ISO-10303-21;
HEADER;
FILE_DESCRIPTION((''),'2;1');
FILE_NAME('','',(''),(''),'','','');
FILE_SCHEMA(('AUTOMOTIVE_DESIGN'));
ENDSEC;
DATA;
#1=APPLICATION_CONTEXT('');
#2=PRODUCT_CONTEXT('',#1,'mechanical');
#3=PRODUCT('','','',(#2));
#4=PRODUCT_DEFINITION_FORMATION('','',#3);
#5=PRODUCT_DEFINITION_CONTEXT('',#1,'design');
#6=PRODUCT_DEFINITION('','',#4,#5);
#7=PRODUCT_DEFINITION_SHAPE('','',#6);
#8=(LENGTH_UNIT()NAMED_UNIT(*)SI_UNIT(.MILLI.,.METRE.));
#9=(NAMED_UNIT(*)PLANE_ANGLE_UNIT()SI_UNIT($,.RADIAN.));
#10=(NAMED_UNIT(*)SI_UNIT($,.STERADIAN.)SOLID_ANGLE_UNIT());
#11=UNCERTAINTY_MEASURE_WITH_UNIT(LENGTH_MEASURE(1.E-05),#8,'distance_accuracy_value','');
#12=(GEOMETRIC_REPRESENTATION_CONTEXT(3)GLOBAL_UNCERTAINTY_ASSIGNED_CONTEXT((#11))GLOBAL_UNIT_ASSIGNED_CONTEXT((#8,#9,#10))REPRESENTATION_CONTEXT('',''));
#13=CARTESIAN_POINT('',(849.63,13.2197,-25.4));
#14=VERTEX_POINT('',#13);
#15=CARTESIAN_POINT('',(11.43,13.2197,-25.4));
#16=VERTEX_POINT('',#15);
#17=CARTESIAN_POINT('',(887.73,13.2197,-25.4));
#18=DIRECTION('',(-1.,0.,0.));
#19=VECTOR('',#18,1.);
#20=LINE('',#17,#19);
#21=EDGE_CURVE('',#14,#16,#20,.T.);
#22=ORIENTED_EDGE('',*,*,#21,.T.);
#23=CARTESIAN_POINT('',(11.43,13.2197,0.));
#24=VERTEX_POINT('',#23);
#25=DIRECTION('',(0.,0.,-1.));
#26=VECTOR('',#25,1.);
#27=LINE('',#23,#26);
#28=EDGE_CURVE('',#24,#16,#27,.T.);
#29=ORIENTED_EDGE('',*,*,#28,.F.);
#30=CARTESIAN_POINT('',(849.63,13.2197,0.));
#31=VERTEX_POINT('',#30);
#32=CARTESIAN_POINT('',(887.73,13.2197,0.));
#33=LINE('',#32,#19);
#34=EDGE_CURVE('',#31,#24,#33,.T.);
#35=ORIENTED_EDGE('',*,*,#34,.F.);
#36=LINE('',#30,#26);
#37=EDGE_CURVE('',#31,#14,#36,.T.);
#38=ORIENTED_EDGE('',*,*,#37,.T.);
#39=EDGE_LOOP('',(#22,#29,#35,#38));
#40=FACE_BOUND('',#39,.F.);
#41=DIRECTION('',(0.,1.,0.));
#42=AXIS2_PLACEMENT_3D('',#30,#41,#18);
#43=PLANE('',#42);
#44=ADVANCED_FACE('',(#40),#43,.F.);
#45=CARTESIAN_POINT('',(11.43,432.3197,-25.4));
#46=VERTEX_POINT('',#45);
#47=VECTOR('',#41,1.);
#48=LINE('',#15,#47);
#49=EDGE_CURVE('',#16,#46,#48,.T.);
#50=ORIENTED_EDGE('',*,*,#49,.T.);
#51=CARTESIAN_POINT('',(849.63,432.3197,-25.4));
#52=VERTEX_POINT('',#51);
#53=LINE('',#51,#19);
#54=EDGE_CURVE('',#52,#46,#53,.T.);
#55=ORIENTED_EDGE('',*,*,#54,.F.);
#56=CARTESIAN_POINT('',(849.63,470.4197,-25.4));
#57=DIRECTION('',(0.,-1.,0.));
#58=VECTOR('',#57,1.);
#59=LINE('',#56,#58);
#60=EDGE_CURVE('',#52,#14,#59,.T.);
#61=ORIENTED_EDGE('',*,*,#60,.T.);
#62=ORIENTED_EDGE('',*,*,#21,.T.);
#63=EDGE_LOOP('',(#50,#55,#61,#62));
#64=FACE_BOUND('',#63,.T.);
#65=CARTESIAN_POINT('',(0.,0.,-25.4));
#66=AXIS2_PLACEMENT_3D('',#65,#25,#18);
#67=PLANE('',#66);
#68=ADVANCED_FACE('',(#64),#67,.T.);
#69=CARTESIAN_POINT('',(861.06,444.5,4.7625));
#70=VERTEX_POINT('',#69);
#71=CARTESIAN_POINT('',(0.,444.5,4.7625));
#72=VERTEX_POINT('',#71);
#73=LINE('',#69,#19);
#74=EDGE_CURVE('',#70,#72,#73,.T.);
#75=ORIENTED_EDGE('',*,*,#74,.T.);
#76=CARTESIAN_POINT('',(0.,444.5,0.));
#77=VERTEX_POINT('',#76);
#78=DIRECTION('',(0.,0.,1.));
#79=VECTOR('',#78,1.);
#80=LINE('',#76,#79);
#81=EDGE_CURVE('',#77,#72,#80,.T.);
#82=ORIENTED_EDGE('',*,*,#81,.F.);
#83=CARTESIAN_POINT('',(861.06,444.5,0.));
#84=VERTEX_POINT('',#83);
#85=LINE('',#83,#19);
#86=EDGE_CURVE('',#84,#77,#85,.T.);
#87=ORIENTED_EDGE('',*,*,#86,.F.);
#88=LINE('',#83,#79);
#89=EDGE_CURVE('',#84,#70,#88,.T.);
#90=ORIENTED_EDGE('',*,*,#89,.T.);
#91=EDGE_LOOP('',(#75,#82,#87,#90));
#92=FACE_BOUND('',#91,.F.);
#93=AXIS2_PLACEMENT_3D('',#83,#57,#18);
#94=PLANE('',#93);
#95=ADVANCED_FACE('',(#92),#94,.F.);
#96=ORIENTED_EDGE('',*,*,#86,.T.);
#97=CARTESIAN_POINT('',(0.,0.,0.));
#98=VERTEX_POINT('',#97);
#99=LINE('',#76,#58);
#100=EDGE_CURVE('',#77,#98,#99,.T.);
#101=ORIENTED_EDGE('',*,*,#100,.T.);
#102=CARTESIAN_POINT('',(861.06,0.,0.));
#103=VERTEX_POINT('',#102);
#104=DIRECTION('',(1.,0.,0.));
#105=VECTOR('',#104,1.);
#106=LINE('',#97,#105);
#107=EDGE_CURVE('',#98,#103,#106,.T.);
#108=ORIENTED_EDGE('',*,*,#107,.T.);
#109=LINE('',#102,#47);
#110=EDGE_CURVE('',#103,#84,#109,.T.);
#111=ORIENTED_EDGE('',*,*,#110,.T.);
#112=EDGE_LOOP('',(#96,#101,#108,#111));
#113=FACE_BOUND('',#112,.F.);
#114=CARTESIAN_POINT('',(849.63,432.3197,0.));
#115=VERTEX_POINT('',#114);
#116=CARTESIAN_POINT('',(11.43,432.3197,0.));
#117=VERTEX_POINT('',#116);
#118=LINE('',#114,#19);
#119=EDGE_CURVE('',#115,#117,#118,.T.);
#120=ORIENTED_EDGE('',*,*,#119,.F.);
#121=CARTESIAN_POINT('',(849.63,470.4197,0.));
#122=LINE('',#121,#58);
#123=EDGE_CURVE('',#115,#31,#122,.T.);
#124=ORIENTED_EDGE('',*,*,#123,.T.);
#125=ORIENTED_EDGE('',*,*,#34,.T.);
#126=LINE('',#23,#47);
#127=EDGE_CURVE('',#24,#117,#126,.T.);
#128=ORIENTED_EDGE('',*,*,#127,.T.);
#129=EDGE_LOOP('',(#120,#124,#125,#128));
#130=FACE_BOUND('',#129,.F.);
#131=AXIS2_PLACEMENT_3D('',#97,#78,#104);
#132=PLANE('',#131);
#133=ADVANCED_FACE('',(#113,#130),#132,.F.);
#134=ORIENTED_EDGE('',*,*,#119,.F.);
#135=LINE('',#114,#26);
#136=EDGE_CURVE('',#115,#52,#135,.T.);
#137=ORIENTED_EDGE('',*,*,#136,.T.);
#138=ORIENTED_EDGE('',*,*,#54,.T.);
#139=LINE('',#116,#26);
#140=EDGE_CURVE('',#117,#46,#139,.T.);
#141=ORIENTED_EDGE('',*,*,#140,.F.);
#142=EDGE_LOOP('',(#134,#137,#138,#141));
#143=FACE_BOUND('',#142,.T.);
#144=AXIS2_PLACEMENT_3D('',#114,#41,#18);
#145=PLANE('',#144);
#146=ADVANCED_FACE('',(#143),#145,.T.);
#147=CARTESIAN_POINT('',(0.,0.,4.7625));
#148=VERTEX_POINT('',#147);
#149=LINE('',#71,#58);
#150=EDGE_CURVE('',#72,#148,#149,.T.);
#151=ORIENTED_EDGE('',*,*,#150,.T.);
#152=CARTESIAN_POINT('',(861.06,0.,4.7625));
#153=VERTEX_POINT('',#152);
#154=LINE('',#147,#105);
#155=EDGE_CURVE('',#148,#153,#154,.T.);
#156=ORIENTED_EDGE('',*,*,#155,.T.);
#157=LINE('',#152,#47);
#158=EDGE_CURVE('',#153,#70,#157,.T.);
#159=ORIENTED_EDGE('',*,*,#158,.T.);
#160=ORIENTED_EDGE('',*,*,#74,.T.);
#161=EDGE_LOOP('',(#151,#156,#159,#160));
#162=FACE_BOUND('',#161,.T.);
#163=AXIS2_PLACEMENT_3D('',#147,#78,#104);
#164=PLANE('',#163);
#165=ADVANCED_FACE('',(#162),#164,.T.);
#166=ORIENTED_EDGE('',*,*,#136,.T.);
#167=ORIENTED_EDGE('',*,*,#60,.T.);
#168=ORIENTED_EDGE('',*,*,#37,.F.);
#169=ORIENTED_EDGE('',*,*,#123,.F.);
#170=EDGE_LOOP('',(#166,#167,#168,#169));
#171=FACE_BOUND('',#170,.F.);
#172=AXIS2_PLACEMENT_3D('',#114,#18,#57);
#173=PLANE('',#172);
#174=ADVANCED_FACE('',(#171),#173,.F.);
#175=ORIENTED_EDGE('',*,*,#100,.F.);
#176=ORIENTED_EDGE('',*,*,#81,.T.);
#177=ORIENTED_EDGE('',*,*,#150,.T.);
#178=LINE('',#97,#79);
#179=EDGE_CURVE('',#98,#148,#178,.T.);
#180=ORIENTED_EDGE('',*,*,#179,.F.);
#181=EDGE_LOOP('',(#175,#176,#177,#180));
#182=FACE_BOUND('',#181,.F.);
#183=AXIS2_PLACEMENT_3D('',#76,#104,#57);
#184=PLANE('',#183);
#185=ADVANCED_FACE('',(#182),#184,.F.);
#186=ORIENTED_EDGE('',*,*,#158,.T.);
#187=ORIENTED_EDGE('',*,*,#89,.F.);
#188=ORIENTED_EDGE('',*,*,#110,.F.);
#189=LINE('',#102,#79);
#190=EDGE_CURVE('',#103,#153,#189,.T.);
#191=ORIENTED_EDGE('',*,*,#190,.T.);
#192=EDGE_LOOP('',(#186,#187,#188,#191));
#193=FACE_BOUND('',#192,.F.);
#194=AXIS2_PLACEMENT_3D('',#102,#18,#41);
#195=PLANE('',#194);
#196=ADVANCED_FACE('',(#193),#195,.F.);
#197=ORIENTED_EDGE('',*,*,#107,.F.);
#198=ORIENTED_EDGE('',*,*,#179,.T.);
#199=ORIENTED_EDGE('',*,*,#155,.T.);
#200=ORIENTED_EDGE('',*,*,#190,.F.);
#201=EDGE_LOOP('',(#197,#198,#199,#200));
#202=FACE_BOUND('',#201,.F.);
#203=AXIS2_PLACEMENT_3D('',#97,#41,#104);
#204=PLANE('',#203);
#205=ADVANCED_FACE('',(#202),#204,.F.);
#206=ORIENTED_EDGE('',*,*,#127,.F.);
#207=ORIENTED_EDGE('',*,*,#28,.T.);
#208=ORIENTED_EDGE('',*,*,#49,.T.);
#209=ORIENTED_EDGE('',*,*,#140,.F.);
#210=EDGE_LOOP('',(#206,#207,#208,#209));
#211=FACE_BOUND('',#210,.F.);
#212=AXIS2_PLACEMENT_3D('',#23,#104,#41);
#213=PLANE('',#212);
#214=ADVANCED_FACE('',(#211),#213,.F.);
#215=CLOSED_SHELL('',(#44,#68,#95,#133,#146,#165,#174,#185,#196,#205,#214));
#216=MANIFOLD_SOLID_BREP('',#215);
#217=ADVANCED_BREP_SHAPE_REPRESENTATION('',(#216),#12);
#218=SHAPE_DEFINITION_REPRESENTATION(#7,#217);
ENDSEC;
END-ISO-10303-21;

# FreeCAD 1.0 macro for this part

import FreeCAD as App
import Part
import Sketcher
from FreeCAD import Vector
Q = App.Units.Quantity


def add_polygon(sketch, points):
    """Adds a closed chain of lines whose ends are joined by coincident constraints."""
    first, n = sketch.GeometryCount, len(points)
    for a, b in zip(points, points[1:] + points[:1]):
        sketch.addGeometry(Part.LineSegment(App.Vector(*a, 0), App.Vector(*b, 0)), False)
    for i in range(n):
        sketch.addConstraint(Sketcher.Constraint("Coincident", first + i, 2, first + (i + 1) % n, 1))

doc = App.newDocument("Part")
body = doc.addObject("PartDesign::Body", "Body")

# Sketch on XY plane
sketch1 = body.newObject("Sketcher::SketchObject", "Sketch")
sketch1.AttachmentSupport = (doc.getObject("XY_Plane"), [""])
sketch1.MapMode = "FlatFace"
add_polygon(sketch1, [(0, 444), (0, 0), (861, 0), (861, 444)])  # lines 0-3
sketch1.addConstraint([
    Sketcher.Constraint("Vertical", 0),
    Sketcher.Constraint("Horizontal", 1),
    Sketcher.Constraint("Vertical", 2),
    Sketcher.Constraint("Horizontal", 3),
    Sketcher.Constraint("Coincident", 0, 2, -1, 1),
    Sketcher.Constraint("DistanceX", 1, 1, 1, 2, Q("33.9 in")),
    Sketcher.Constraint("DistanceY", 0, 2, 0, 1, Q("17.5 in")),
])
pad1 = body.newObject("PartDesign::Pad", "Pad")
pad1.Profile = sketch1
pad1.Length = Q("0.1875 in")

# Sketch on XY plane
sketch2 = body.newObject("Sketcher::SketchObject", "Sketch001")
sketch2.AttachmentSupport = (doc.getObject("XY_Plane"), [""])
sketch2.MapMode = "FlatFace"
add_polygon(sketch2, [(850, 13), (11, 13), (11, 432), (850, 432)])  # lines 0-3
sketch2.addConstraint([
    Sketcher.Constraint("Horizontal", 0),
    Sketcher.Constraint("Vertical", 1),
    Sketcher.Constraint("Horizontal", 2),
    Sketcher.Constraint("Vertical", 3),
    Sketcher.Constraint("DistanceX", 0, 2, 0, 1, Q("33 in")),
    Sketcher.Constraint("DistanceY", 1, 1, 1, 2, Q("16.5 in")),
    Sketcher.Constraint("DistanceX", -1, 1, 0, 2, Q("0.45 in")),
    Sketcher.Constraint("DistanceY", -1, 1, 0, 2, 13.2197),
])
pad2 = body.newObject("PartDesign::Pad", "Pad001")
pad2.Profile = sketch2
pad2.Length = Q("1 in")
pad2.Reversed = True

doc.recompute()
